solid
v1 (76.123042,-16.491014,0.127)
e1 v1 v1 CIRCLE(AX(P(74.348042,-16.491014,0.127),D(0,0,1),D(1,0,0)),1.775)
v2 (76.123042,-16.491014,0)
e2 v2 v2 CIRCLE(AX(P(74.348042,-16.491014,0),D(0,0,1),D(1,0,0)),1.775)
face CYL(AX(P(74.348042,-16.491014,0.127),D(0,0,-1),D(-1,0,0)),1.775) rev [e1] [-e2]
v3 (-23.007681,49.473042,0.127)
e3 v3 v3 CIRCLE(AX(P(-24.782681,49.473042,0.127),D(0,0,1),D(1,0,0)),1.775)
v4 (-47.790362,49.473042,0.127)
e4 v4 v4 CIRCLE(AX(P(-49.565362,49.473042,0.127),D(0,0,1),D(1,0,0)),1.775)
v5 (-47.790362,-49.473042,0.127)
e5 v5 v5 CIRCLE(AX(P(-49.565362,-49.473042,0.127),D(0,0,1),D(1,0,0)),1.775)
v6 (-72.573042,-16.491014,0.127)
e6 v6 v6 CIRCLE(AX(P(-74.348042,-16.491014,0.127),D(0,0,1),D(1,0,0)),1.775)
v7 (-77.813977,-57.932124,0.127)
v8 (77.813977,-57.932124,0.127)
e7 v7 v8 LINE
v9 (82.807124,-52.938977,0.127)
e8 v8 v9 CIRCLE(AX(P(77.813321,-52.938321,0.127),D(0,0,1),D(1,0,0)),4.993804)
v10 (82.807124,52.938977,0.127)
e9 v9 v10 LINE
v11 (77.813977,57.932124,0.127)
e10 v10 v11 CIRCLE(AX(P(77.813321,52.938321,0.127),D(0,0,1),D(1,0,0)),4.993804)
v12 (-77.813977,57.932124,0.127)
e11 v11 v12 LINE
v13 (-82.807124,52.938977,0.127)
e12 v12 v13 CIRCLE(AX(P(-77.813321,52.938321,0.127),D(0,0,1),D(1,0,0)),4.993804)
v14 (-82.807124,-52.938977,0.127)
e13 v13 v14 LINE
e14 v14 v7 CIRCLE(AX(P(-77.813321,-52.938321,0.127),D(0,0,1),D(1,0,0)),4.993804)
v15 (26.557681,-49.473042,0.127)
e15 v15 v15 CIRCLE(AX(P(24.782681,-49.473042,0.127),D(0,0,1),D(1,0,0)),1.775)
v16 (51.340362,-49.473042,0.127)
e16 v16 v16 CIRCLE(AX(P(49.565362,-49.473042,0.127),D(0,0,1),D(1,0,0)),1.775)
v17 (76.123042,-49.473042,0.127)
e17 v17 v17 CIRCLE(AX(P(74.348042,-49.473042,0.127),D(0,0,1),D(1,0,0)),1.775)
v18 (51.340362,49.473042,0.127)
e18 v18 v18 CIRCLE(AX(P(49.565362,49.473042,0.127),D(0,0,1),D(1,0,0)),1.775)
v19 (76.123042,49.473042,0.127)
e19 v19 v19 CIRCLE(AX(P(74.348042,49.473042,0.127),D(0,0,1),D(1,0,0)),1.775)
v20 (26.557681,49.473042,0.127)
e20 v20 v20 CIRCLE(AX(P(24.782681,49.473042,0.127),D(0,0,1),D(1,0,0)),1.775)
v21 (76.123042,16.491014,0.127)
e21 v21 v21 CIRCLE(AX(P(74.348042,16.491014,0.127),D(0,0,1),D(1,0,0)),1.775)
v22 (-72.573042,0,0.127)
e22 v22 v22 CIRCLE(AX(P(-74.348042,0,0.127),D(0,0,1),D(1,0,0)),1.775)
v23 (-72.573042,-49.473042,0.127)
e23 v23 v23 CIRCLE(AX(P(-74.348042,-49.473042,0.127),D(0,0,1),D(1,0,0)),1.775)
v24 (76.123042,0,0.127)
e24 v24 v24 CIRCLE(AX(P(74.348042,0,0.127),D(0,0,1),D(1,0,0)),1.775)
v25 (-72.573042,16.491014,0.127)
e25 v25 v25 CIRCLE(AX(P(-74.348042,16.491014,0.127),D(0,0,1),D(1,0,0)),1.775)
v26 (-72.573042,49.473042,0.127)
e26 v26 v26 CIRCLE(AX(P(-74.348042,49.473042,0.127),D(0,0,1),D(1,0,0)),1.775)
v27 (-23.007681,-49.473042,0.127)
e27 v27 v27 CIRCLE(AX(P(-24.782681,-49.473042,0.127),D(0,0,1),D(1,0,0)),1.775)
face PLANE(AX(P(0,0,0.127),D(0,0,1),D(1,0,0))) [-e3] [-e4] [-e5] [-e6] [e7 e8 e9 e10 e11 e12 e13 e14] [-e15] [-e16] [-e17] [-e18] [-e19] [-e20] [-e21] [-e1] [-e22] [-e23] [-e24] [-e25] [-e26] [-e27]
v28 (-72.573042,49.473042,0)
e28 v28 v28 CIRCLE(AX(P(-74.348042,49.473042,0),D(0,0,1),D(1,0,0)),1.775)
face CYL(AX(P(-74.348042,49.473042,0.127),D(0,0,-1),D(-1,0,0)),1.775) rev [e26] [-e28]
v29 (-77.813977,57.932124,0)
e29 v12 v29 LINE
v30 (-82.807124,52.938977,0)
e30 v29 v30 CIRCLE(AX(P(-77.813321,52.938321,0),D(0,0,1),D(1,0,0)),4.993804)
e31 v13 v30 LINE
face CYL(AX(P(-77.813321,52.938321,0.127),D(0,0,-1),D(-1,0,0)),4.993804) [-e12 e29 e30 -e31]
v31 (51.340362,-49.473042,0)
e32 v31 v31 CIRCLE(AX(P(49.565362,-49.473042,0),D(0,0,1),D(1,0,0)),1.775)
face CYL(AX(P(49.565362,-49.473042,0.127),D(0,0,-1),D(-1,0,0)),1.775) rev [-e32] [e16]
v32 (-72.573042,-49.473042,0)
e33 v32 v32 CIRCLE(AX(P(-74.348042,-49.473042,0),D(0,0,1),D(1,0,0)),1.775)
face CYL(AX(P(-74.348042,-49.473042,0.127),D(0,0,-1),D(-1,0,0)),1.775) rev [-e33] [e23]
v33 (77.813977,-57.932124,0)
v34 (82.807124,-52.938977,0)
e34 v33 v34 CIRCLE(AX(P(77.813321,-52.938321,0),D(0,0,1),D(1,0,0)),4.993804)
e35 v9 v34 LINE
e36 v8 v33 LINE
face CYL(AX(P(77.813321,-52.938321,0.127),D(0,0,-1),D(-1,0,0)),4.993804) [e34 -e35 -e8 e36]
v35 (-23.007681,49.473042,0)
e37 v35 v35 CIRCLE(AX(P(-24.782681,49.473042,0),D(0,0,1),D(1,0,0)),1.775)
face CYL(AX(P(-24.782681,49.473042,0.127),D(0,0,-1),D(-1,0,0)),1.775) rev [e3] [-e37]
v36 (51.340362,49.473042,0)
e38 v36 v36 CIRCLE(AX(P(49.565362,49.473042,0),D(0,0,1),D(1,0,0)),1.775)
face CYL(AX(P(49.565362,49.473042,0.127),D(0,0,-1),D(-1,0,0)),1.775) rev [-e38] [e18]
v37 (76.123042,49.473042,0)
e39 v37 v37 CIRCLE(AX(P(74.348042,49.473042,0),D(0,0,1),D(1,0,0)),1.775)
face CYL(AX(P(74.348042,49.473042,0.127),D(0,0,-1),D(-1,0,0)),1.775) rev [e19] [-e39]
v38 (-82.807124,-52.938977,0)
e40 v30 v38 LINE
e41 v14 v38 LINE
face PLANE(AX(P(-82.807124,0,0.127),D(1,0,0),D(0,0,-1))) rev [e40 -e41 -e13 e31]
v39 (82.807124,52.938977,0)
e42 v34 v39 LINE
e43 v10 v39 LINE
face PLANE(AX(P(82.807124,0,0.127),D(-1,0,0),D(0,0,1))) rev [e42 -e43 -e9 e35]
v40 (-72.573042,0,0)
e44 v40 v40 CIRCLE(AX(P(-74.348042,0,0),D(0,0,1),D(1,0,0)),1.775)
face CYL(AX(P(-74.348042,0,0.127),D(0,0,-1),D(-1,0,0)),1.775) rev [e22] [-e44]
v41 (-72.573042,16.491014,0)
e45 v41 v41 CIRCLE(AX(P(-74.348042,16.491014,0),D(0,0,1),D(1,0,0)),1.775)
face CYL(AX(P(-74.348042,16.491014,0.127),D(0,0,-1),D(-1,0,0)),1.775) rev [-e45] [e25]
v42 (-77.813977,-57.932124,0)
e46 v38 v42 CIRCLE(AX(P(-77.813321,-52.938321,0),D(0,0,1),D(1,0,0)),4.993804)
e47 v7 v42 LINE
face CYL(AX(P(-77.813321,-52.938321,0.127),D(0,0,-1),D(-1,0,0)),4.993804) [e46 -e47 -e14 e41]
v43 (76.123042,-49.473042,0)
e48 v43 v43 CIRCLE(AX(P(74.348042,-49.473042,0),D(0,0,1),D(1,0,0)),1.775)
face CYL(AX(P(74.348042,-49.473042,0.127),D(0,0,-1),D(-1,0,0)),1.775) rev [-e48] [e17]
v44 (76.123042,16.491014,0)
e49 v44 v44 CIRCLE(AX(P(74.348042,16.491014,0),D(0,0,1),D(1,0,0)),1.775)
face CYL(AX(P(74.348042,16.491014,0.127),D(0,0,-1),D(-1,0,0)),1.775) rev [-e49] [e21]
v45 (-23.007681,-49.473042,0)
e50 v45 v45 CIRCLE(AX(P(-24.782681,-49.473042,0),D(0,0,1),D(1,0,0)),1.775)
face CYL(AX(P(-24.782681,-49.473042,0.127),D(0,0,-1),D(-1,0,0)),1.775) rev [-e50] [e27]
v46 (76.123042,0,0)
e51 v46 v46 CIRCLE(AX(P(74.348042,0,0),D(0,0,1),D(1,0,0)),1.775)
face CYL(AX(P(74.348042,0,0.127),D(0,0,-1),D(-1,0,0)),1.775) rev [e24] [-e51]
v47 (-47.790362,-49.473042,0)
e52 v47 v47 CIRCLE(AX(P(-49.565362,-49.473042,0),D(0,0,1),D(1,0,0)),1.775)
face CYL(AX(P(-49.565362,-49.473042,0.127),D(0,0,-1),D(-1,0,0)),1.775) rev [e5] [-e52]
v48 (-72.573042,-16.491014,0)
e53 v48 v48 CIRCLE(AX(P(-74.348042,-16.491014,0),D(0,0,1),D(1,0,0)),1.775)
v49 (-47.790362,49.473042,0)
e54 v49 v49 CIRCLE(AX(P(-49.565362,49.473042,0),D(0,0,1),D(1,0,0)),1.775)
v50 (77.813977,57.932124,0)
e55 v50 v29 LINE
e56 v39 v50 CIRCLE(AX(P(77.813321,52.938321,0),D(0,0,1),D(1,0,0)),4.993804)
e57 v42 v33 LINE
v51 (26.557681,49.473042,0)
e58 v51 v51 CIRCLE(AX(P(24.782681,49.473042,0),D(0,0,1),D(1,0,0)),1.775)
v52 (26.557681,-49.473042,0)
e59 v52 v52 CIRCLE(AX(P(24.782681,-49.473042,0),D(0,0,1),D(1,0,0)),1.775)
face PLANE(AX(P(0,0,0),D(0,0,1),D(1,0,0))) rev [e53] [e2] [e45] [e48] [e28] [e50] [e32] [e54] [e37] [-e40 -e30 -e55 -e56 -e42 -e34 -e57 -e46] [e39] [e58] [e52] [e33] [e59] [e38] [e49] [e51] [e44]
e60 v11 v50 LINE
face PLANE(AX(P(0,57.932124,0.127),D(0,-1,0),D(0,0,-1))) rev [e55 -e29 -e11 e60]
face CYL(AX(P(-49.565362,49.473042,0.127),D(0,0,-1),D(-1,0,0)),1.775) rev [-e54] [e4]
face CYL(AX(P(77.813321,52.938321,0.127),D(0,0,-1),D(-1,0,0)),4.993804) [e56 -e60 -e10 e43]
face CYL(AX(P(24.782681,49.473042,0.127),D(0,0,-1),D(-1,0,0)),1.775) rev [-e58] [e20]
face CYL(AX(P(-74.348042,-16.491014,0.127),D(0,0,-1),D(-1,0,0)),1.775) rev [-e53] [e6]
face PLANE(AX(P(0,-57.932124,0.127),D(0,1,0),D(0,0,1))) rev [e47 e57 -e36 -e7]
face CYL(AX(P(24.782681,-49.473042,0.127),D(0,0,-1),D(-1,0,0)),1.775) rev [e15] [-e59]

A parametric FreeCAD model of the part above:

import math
import FreeCAD as App
import Part
import Sketcher
from FreeCAD import Vector
Q = App.Units.Quantity

doc = App.newDocument("Part")
body = doc.addObject("PartDesign::Body", "Body")

# Sketch on XY plane
sketch1 = body.newObject("Sketcher::SketchObject", "Sketch")
sketch1.AttachmentSupport = (doc.getObject("XY_Plane"), [""])
sketch1.MapMode = "FlatFace"
sketch1.addGeometry(Part.LineSegment(Vector(82.807124, -52.938977, 0), Vector(82.807124, 52.938977, 0)), False)
sketch1.addGeometry(Part.ArcOfCircle(Part.Circle(Vector(77.813321, 52.938321, 0), Vector(0, 0, 1), 4.993804), math.radians(0.007524), math.radians(89.992476)), False)
sketch1.addGeometry(Part.LineSegment(Vector(77.813977, 57.932124, 0), Vector(-77.813977, 57.932124, 0)), False)
sketch1.addGeometry(Part.ArcOfCircle(Part.Circle(Vector(-77.813321, 52.938321, 0), Vector(0, 0, 1), 4.993804), math.radians(90.007524), math.radians(179.992476)), False)
sketch1.addGeometry(Part.LineSegment(Vector(-82.807124, 52.938977, 0), Vector(-82.807124, -52.938977, 0)), False)
sketch1.addGeometry(Part.ArcOfCircle(Part.Circle(Vector(-77.813321, -52.938321, 0), Vector(0, 0, 1), 4.993804), math.radians(-179.992476), math.radians(-90.007524)), False)
sketch1.addGeometry(Part.LineSegment(Vector(-77.813977, -57.932124, 0), Vector(77.813977, -57.932124, 0)), False)
sketch1.addGeometry(Part.ArcOfCircle(Part.Circle(Vector(77.813321, -52.938321, 0), Vector(0, 0, 1), 4.993804), math.radians(-89.992476), math.radians(-0.007524)), False)
sketch1.addGeometry(Part.Circle(Vector(-74.348042, -49.473042, 0), Vector(0, 0, 1), 1.775), False)
sketch1.addGeometry(Part.Circle(Vector(-49.565362, -49.473042, 0), Vector(0, 0, 1), 1.775), False)
sketch1.addGeometry(Part.Circle(Vector(-24.782681, -49.473042, 0), Vector(0, 0, 1), 1.775), False)
sketch1.addGeometry(Part.Circle(Vector(-74.348042, -16.491014, 0), Vector(0, 0, 1), 1.775), False)
sketch1.addGeometry(Part.Circle(Vector(24.782681, -49.473042, 0), Vector(0, 0, 1), 1.775), False)
sketch1.addGeometry(Part.Circle(Vector(49.565362, -49.473042, 0), Vector(0, 0, 1), 1.775), False)
sketch1.addGeometry(Part.Circle(Vector(74.348042, -49.473042, 0), Vector(0, 0, 1), 1.775), False)
sketch1.addGeometry(Part.Circle(Vector(74.348042, -16.491014, 0), Vector(0, 0, 1), 1.775), False)
sketch1.addGeometry(Part.Circle(Vector(-74.348042, 0, 0), Vector(0, 0, 1), 1.775), False)
sketch1.addGeometry(Part.Circle(Vector(-74.348042, 16.491014, 0), Vector(0, 0, 1), 1.775), False)
sketch1.addGeometry(Part.Circle(Vector(-74.348042, 49.473042, 0), Vector(0, 0, 1), 1.775), False)
sketch1.addGeometry(Part.Circle(Vector(-49.565362, 49.473042, 0), Vector(0, 0, 1), 1.775), False)
sketch1.addGeometry(Part.Circle(Vector(-24.782681, 49.473042, 0), Vector(0, 0, 1), 1.775), False)
sketch1.addGeometry(Part.Circle(Vector(74.348042, 0, 0), Vector(0, 0, 1), 1.775), False)
sketch1.addGeometry(Part.Circle(Vector(74.348042, 16.491014, 0), Vector(0, 0, 1), 1.775), False)
sketch1.addGeometry(Part.Circle(Vector(24.782681, 49.473042, 0), Vector(0, 0, 1), 1.775), False)
sketch1.addGeometry(Part.Circle(Vector(49.565362, 49.473042, 0), Vector(0, 0, 1), 1.775), False)
sketch1.addGeometry(Part.Circle(Vector(74.348042, 49.473042, 0), Vector(0, 0, 1), 1.775), False)
sketch1.addConstraint(Sketcher.Constraint("Coincident", 0, 2, 1, 1))
sketch1.addConstraint(Sketcher.Constraint("Coincident", 1, 2, 2, 1))
sketch1.addConstraint(Sketcher.Constraint("Coincident", 2, 2, 3, 1))
sketch1.addConstraint(Sketcher.Constraint("Coincident", 3, 2, 4, 1))
sketch1.addConstraint(Sketcher.Constraint("Coincident", 4, 2, 5, 1))
sketch1.addConstraint(Sketcher.Constraint("Coincident", 5, 2, 6, 1))
sketch1.addConstraint(Sketcher.Constraint("Coincident", 6, 2, 7, 1))
sketch1.addConstraint(Sketcher.Constraint("Coincident", 7, 2, 0, 1))
sketch1.addConstraint(Sketcher.Constraint("Vertical", 0))
sketch1.addConstraint(Sketcher.Constraint("Horizontal", 2))
sketch1.addConstraint(Sketcher.Constraint("Vertical", 4))
sketch1.addConstraint(Sketcher.Constraint("Horizontal", 6))
sketch1.addConstraint(Sketcher.Constraint("Equal", 1, 3))
sketch1.addConstraint(Sketcher.Constraint("Equal", 3, 5))
sketch1.addConstraint(Sketcher.Constraint("Equal", 5, 7))
sketch1.addConstraint(Sketcher.Constraint("Equal", 8, 9))
sketch1.addConstraint(Sketcher.Constraint("Equal", 9, 10))
sketch1.addConstraint(Sketcher.Constraint("Equal", 10, 11))
sketch1.addConstraint(Sketcher.Constraint("Equal", 11, 12))
sketch1.addConstraint(Sketcher.Constraint("Equal", 12, 13))
sketch1.addConstraint(Sketcher.Constraint("Equal", 13, 14))
sketch1.addConstraint(Sketcher.Constraint("Equal", 14, 15))
sketch1.addConstraint(Sketcher.Constraint("Equal", 15, 16))
sketch1.addConstraint(Sketcher.Constraint("Equal", 16, 17))
sketch1.addConstraint(Sketcher.Constraint("Equal", 17, 18))
sketch1.addConstraint(Sketcher.Constraint("Equal", 18, 19))
sketch1.addConstraint(Sketcher.Constraint("Equal", 19, 20))
sketch1.addConstraint(Sketcher.Constraint("Equal", 20, 21))
sketch1.addConstraint(Sketcher.Constraint("Equal", 21, 22))
sketch1.addConstraint(Sketcher.Constraint("Equal", 22, 23))
sketch1.addConstraint(Sketcher.Constraint("Equal", 23, 24))
sketch1.addConstraint(Sketcher.Constraint("Equal", 24, 25))
sketch1.addConstraint(Sketcher.Constraint("Symmetric", 1, 3, 5, 3, -1, 1))
sketch1.addConstraint(Sketcher.Constraint("Symmetric", 15, 3, 17, 3, -1, 1))
sketch1.addConstraint(Sketcher.Constraint("Symmetric", 14, 3, 18, 3, -1, 1))
sketch1.addConstraint(Sketcher.Constraint("Symmetric", 13, 3, 19, 3, -1, 1))
sketch1.addConstraint(Sketcher.Constraint("Symmetric", 12, 3, 20, 3, -1, 1))
sketch1.addConstraint(Sketcher.Constraint("Symmetric", 16, 3, 21, 3, -1, 1))
sketch1.addConstraint(Sketcher.Constraint("Symmetric", 11, 3, 22, 3, -1, 1))
sketch1.addConstraint(Sketcher.Constraint("Symmetric", 10, 3, 23, 3, -1, 1))
sketch1.addConstraint(Sketcher.Constraint("Symmetric", 9, 3, 24, 3, -1, 1))
sketch1.addConstraint(Sketcher.Constraint("Symmetric", 8, 3, 25, 3, -1, 1))
sketch1.addConstraint(Sketcher.Constraint("Symmetric", 10, 3, 12, 3, -2))
sketch1.addConstraint(Sketcher.Constraint("Symmetric", 9, 3, 13, 3, -2))
sketch1.addConstraint(Sketcher.Constraint("Symmetric", 8, 3, 14, 3, -2))
sketch1.addConstraint(Sketcher.Constraint("Symmetric", 11, 3, 15, 3, -2))
sketch1.addConstraint(Sketcher.Constraint("PointOnObject", 16, 3, -1))
sketch1.addConstraint(Sketcher.Constraint("Horizontal", 8, 3, 9, 3))
sketch1.addConstraint(Sketcher.Constraint("Horizontal", 9, 3, 10, 3))
sketch1.addConstraint(Sketcher.Constraint("Horizontal", 0, 2, 3, 2))
sketch1.addConstraint(Sketcher.Constraint("Horizontal", 4, 2, 7, 2))
sketch1.addConstraint(Sketcher.Constraint("Vertical", 8, 3, 11, 3))
sketch1.addConstraint(Sketcher.Constraint("Vertical", 11, 3, 16, 3))
sketch1.addConstraint(Sketcher.Constraint("Vertical", 2, 2, 5, 2))
sketch1.addConstraint(Sketcher.Constraint("Vertical", 1, 2, 6, 2))
sketch1.addConstraint(Sketcher.Constraint("Diameter", 8, 3.55))
sketch1.addConstraint(Sketcher.Constraint("Radius", 1, 4.993804))
sketch1.addConstraint(Sketcher.Constraint("DistanceX", 10, 3, 7, 3, 102.596002))
sketch1.addConstraint(Sketcher.Constraint("DistanceX", 2, 2, 2, 1, 155.627953))
sketch1.addConstraint(Sketcher.Constraint("DistanceY", 0, 1, 0, 2, 105.877953))
sketch1.addConstraint(Sketcher.Constraint("DistanceX", -1, 1, 1, 3, 77.813321))
sketch1.addConstraint(Sketcher.Constraint("DistanceY", -1, 1, 1, 3, 52.938321))
sketch1.addConstraint(Sketcher.Constraint("DistanceX", 9, 3, -1, 1, 49.565362))
sketch1.addConstraint(Sketcher.Constraint("DistanceX", 5, 3, 8, 3, 3.465278))
sketch1.addConstraint(Sketcher.Constraint("DistanceY", 5, 3, 8, 3, 3.465278))
sketch1.addConstraint(Sketcher.Constraint("DistanceY", 8, 3, 11, 3, 32.982028))
sketch1.addConstraint(Sketcher.Constraint("DistanceY", -1, 1, 0, 2, 52.938977))
sketch1.addConstraint(Sketcher.Constraint("DistanceX", -1, 1, 1, 2, 77.813977))
pad1 = body.newObject("PartDesign::Pad", "Pad")
pad1.Profile = sketch1
pad1.Length = Q("0.005 in")

doc.recompute()
